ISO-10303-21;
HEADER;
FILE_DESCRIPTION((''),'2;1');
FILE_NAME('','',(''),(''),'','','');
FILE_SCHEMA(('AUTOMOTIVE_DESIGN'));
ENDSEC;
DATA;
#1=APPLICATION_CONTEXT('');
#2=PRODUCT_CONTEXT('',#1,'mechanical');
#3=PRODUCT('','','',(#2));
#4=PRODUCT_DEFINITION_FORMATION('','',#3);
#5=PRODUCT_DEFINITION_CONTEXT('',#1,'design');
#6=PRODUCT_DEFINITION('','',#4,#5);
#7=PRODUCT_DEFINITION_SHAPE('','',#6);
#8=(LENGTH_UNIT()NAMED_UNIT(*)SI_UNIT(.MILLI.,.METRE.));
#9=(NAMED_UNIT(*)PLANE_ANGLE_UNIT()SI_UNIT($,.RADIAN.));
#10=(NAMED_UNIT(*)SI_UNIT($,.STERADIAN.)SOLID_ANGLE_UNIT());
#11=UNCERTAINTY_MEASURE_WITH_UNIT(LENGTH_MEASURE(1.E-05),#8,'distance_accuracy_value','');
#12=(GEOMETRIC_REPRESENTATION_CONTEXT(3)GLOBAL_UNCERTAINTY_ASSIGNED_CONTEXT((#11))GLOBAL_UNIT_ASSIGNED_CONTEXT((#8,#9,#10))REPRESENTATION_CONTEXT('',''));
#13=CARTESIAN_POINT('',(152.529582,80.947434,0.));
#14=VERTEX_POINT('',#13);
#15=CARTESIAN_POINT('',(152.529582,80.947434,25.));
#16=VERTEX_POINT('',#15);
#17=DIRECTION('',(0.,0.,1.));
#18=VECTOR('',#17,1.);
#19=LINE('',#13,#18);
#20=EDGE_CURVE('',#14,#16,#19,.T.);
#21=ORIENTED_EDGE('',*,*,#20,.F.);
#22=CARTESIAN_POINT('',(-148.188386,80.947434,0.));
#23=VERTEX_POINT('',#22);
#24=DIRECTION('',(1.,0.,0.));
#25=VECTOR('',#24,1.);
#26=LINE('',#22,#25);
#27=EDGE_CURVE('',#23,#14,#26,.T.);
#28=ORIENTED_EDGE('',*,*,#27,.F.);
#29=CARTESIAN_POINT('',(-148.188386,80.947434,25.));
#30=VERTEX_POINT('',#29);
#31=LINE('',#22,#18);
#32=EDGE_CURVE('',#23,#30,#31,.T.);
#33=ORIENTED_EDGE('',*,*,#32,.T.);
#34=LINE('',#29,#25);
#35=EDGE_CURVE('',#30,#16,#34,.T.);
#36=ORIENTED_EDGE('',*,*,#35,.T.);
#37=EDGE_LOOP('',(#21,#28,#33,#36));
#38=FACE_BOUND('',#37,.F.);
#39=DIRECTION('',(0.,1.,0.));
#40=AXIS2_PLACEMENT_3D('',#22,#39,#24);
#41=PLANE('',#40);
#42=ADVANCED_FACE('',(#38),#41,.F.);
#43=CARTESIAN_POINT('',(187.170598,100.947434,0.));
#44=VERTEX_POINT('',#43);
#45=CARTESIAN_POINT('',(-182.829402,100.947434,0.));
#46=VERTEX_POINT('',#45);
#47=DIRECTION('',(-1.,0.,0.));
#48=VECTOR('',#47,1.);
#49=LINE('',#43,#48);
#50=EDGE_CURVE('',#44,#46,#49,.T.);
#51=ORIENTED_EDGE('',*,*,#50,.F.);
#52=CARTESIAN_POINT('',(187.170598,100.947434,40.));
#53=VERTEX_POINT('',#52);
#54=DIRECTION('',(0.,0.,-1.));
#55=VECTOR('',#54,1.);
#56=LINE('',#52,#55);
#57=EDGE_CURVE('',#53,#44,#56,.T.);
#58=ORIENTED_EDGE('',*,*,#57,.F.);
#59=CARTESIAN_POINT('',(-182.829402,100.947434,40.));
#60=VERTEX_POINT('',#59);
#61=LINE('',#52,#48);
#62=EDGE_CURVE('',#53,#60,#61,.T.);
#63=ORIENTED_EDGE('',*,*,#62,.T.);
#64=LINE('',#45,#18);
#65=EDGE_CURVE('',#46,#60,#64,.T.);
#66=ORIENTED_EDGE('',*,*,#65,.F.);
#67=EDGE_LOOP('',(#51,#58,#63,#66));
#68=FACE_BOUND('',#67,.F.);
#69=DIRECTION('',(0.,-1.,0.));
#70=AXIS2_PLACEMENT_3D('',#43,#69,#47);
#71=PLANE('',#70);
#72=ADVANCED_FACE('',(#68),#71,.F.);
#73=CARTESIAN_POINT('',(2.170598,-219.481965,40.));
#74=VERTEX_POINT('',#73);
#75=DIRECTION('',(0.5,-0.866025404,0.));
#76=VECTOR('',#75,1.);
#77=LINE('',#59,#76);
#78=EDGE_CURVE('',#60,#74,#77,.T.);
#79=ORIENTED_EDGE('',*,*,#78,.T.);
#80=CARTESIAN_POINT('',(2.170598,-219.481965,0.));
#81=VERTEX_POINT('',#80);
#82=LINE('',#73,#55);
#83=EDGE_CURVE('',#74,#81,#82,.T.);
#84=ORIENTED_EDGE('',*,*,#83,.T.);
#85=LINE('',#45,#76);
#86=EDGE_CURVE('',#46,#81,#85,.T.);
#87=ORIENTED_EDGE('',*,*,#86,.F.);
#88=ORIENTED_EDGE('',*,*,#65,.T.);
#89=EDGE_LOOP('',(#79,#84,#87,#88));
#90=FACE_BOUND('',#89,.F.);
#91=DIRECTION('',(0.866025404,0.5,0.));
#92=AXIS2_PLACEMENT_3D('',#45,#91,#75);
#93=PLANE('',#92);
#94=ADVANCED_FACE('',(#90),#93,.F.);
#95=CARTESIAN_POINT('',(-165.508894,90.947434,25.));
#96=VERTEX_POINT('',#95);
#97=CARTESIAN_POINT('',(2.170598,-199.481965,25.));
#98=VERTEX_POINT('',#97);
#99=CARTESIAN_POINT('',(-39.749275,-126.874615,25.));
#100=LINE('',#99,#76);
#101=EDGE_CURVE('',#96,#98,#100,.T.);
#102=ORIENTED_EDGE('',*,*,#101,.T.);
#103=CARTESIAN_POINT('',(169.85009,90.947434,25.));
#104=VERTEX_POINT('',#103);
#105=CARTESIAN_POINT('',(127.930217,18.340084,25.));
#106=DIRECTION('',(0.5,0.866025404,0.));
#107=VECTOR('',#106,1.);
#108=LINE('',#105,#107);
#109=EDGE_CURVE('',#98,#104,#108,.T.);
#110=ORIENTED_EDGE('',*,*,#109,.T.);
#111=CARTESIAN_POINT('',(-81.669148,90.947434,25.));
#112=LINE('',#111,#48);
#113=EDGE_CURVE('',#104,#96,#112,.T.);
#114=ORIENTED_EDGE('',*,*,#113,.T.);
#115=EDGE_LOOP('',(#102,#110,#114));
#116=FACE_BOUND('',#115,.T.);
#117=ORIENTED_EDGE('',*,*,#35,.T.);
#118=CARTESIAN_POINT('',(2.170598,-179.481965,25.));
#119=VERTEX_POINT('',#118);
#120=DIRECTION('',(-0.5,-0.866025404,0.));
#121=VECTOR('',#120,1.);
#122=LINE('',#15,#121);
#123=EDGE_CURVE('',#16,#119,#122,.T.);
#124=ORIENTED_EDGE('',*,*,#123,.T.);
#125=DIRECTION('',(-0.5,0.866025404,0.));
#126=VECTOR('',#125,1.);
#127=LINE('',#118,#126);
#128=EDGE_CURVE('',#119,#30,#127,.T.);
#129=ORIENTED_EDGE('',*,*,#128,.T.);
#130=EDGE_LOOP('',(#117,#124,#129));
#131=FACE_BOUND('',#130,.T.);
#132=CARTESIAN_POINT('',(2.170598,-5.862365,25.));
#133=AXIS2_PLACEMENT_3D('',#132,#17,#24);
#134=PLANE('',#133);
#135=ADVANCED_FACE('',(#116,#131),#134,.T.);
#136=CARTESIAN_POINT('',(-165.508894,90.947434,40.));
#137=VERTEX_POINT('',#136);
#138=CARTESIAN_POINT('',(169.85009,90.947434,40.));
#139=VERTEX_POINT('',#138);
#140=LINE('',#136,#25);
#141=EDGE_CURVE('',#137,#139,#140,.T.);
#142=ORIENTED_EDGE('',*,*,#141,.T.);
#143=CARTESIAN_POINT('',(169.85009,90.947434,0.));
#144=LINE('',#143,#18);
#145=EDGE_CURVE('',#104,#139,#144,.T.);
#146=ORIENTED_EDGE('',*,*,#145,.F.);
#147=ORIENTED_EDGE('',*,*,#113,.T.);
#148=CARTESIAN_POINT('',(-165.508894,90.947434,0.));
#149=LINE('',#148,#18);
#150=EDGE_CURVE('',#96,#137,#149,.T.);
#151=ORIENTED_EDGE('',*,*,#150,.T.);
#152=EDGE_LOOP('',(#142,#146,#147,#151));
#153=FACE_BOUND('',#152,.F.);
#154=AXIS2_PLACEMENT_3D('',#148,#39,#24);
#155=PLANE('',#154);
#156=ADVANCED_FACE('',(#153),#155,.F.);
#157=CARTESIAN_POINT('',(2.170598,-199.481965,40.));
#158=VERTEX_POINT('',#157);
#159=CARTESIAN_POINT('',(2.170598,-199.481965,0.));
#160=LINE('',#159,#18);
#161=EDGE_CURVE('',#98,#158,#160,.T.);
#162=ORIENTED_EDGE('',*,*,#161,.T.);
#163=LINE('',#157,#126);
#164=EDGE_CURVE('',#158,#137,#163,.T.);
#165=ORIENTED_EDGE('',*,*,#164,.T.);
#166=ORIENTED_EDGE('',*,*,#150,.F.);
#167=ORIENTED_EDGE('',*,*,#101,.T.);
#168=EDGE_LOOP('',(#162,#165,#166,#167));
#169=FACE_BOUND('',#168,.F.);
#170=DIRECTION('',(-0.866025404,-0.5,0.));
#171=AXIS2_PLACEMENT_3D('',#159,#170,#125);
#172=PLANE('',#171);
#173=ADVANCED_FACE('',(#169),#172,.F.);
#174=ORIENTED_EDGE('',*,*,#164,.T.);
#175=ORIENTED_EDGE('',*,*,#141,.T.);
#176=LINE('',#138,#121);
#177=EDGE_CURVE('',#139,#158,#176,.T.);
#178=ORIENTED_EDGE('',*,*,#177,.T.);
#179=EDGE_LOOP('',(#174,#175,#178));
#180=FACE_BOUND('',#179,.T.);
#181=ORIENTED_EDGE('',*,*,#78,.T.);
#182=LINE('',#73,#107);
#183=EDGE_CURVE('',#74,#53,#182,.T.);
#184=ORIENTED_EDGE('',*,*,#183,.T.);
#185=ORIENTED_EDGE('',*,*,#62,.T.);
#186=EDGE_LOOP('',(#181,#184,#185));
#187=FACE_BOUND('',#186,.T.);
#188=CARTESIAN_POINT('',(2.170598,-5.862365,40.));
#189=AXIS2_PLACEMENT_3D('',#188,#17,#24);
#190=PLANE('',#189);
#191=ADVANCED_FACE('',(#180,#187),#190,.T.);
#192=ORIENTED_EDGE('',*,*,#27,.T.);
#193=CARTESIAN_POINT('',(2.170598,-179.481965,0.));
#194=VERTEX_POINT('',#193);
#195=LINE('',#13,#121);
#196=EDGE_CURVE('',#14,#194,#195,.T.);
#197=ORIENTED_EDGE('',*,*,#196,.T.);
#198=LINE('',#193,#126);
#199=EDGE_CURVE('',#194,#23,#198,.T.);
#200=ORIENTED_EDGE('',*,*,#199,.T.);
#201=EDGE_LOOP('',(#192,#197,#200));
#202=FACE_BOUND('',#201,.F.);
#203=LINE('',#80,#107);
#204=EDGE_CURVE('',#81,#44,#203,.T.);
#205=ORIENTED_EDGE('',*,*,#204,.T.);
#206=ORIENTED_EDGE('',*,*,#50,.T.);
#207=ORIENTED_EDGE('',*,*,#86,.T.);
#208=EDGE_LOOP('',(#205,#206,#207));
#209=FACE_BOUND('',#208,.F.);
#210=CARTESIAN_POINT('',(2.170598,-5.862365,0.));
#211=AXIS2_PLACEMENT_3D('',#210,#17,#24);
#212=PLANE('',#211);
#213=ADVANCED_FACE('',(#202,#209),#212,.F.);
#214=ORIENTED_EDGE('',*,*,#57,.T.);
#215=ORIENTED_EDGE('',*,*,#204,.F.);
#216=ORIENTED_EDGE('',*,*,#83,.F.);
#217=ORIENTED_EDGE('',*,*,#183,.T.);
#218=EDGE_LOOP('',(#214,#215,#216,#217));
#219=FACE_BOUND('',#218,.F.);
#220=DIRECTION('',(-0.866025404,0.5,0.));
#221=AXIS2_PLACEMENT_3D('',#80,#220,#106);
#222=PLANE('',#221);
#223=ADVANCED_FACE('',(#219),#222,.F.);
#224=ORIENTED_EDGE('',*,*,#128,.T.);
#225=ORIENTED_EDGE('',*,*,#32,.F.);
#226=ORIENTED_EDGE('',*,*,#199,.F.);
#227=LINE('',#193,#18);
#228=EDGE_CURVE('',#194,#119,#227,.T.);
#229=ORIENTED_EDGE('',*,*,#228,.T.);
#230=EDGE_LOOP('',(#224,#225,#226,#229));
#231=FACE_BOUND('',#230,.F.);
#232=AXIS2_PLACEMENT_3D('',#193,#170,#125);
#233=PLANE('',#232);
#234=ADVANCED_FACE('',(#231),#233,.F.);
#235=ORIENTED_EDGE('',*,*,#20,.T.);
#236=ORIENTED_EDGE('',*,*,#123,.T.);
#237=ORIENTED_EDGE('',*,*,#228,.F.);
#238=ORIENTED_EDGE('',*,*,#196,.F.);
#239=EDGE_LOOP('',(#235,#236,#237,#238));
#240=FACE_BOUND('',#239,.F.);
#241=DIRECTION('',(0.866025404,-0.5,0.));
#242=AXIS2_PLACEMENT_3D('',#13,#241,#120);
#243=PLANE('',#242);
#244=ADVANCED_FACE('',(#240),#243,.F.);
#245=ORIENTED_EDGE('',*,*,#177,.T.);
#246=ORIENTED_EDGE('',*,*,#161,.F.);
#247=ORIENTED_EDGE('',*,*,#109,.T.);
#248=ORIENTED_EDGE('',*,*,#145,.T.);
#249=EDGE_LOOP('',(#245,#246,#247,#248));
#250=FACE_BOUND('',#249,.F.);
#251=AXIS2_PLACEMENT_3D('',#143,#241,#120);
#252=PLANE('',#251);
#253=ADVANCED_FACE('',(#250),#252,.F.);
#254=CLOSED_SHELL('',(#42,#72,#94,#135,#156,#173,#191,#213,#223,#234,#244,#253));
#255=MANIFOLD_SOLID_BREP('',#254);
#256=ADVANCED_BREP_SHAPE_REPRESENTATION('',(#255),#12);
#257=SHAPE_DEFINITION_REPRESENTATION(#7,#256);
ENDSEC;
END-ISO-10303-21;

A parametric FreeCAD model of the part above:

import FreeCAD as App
import Part
import Sketcher

V = App.Vector
Q = App.Units.Quantity


def add_polygon(sketch, points):
    """Adds a closed chain of lines whose ends are joined by coincident constraints."""
    first, n = sketch.GeometryCount, len(points)
    for a, b in zip(points, points[1:] + points[:1]):
        sketch.addGeometry(Part.LineSegment(App.Vector(*a, 0), App.Vector(*b, 0)), False)
    for i in range(n):
        sketch.addConstraint(Sketcher.Constraint("Coincident", first + i, 2, first + (i + 1) % n, 1))

doc = App.newDocument("Part")
body = doc.addObject("PartDesign::Body", "Body")

# Sketch on XY plane
sketch1 = doc.addObject("Sketcher::SketchObject", "Sketch")
body.addObject(sketch1)
sketch1.AttachmentSupport = (doc.XY_Plane, [""])
sketch1.MapMode = "FlatFace"
add_polygon(sketch1, [(187, 101), (-183, 101), (2, -219)])  # lines 0-2
add_polygon(sketch1, [(-148, 81), (153, 81), (2, -179)])  # lines 3-5
sketch1.addConstraint([
    Sketcher.Constraint("Horizontal", 0),
    Sketcher.Constraint("Horizontal", 3),
    Sketcher.Constraint("Parallel", 2, 4),
    Sketcher.Constraint("Parallel", 1, 5),
    Sketcher.Constraint("Vertical", 1, 2, 4, 2),
    Sketcher.Constraint("Equal", 1, 2),
    Sketcher.Constraint("DistanceX", 0, 2, 0, 1, Q("370 mm")),
    Sketcher.Constraint("Angle", 1, Q("-60 deg")),
    Sketcher.Constraint("DistanceY", 3, 2, 2, 2, Q("20 mm")),
    Sketcher.Constraint("DistanceY", 1, 2, 4, 2, Q("40 mm")),
    Sketcher.Constraint("DistanceX", 0, 2, -1, 1, Q("182.829402 mm")),
    Sketcher.Constraint("DistanceY", -1, 1, 0, 2, Q("100.947434 mm")),
])
pad1 = doc.addObject("PartDesign::Pad", "Pad")
body.addObject(pad1)
pad1.Profile = sketch1
pad1.Length = 25

# Sketch on XY plane
sketch2 = doc.addObject("Sketcher::SketchObject", "Sketch001")
body.addObject(sketch2)
sketch2.AttachmentSupport = (doc.XY_Plane, [""])
sketch2.MapMode = "FlatFace"
add_polygon(sketch2, [(187, 101), (-183, 101), (2, -219)])  # lines 0-2
add_polygon(sketch2, [(170, 91), (2, -199), (-166, 91)])  # lines 3-5
sketch2.addConstraint([
    Sketcher.Constraint("Horizontal", 0),
    Sketcher.Constraint("Horizontal", 5),
    Sketcher.Constraint("Parallel", 2, 3),
    Sketcher.Constraint("Parallel", 1, 4),
    Sketcher.Constraint("Vertical", 1, 2, 3, 2),
    Sketcher.Constraint("Equal", 1, 2),
    Sketcher.Constraint("DistanceX", 0, 2, 0, 1, Q("370 mm")),
    Sketcher.Constraint("Angle", 1, Q("-60 deg")),
    Sketcher.Constraint("DistanceY", 1, 2, 3, 2, Q("20 mm")),
    Sketcher.Constraint("DistanceY", 4, 2, 0, 2, Q("10 mm")),
    Sketcher.Constraint("DistanceX", 0, 2, -1, 1, Q("182.829402 mm")),
    Sketcher.Constraint("DistanceY", -1, 1, 0, 2, Q("100.947434 mm")),
])
pad2 = doc.addObject("PartDesign::Pad", "Pad001")
body.addObject(pad2)
pad2.Profile = sketch2
pad2.Length = 40

doc.recompute()
